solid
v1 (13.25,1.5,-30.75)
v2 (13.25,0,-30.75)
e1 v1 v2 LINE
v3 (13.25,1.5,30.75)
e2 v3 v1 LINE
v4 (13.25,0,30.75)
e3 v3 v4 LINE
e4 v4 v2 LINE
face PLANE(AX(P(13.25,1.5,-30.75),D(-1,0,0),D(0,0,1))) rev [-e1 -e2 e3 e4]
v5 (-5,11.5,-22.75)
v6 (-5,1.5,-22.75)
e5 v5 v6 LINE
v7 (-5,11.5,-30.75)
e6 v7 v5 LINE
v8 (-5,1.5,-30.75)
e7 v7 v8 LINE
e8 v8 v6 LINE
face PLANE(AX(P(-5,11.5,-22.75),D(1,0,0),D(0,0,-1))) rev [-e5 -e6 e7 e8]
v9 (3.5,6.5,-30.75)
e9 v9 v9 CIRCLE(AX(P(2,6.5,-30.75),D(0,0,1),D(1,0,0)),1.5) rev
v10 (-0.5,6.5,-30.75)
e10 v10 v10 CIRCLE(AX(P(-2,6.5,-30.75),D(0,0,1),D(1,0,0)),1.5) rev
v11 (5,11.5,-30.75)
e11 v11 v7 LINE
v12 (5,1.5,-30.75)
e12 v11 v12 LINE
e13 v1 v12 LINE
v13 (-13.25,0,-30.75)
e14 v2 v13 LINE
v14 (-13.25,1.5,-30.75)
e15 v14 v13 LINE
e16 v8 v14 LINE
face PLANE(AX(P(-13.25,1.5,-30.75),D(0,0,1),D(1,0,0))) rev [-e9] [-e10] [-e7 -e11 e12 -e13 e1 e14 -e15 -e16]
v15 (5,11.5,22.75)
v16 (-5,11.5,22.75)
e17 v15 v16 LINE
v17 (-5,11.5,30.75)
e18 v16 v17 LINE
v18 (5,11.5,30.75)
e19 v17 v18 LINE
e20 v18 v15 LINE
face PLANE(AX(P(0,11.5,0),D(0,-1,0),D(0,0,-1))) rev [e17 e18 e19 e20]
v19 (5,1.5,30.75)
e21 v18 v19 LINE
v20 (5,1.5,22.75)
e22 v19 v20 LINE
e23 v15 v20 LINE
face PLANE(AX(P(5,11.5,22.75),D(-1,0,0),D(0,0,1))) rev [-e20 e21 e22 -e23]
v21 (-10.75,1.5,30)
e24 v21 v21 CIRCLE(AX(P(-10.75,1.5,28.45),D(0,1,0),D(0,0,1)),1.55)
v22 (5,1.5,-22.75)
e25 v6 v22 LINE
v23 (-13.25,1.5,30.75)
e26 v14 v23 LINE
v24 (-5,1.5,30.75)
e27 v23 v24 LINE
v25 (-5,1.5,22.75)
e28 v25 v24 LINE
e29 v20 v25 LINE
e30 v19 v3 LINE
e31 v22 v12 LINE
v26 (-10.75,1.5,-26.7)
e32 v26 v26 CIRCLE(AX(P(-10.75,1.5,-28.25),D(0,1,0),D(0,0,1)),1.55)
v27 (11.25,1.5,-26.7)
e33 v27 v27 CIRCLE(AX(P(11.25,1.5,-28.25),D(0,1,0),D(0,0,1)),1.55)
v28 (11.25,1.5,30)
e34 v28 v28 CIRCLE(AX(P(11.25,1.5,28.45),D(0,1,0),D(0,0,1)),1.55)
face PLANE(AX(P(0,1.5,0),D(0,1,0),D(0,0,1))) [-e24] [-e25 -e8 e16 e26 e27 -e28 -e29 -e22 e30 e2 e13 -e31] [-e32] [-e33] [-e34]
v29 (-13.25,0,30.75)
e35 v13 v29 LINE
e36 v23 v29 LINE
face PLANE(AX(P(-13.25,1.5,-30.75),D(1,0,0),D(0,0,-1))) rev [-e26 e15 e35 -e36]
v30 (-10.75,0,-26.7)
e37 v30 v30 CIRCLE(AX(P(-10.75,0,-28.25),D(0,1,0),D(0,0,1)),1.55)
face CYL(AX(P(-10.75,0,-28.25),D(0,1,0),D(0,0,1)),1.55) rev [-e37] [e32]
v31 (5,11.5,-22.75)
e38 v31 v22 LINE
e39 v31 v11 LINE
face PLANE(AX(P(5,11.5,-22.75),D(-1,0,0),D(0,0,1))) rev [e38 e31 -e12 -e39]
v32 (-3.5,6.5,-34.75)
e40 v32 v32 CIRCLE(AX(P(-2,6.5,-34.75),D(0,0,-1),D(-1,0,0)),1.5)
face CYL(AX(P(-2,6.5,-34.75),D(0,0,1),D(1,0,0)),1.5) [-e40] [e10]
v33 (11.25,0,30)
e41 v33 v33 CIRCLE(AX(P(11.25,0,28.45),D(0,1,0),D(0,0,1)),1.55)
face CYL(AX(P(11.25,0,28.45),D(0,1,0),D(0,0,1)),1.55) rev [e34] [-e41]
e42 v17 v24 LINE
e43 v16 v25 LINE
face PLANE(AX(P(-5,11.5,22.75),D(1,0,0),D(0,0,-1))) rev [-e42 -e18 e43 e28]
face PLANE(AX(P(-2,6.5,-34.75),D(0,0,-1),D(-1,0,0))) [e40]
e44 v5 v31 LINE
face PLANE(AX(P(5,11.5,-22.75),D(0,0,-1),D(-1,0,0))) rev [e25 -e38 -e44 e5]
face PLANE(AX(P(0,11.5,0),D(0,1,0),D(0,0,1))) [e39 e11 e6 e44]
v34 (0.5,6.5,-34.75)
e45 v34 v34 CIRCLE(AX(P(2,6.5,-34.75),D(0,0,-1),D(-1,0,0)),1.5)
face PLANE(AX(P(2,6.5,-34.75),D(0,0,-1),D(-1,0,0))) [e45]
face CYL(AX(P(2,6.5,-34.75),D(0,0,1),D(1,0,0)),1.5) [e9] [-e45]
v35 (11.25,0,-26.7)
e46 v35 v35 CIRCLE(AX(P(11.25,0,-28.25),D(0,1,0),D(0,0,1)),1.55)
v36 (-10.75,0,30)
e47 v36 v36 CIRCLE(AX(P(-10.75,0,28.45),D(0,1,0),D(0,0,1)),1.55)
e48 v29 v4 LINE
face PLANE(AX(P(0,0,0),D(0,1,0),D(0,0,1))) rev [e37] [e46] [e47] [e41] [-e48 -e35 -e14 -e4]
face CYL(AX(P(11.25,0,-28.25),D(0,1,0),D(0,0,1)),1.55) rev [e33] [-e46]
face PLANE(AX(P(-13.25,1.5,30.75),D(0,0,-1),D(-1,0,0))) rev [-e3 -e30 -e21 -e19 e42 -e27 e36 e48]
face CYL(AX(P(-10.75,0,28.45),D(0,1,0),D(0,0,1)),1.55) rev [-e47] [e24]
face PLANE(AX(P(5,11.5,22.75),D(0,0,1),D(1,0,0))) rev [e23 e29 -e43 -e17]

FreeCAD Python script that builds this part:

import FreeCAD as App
import Part
import Sketcher

doc = App.newDocument("Part")
params = doc.addObject("Spreadsheet::Sheet", "Params")
for row, (alias, value) in enumerate([
    ("sketch1_width", "26.5 mm"),
    ("sketch1_height", "61.5 mm"),
    ("pad1_length", "1.5 mm"),
    ("sketch2_diameter", "3.1 mm"),
    ("sketch3_width", "10 mm"),
    ("sketch3_height", "8 mm"),
    ("pad2_length", "10 mm"),
    ("sketch4_diameter", "3 mm"),
    ("pad3_length", "4 mm"),
], start=1):
    params.set(f"A{row}", alias)
    params.set(f"B{row}", "=" + value)
    params.setAlias(f"B{row}", alias)

body = doc.addObject("PartDesign::Body", "Body")

# Sketch on XZ plane
sketch1 = body.newObject("Sketcher::SketchObject", "Sketch")
sketch1.AttachmentSupport = (doc.getObject("XZ_Plane"), [""])
sketch1.MapMode = "FlatFace"
sketch1.addGeometry([
    Part.LineSegment(App.Vector(-13, -31, 0), App.Vector(-13, 31, 0)),
    Part.LineSegment(App.Vector(-13, 31, 0), App.Vector(13, 31, 0)),
    Part.LineSegment(App.Vector(13, 31, 0), App.Vector(13, -31, 0)),
    Part.LineSegment(App.Vector(13, -31, 0), App.Vector(-13, -31, 0)),
], False)
sketch1.addConstraint([
    Sketcher.Constraint("Coincident", 0, 2, 1, 1),
    Sketcher.Constraint("Coincident", 1, 2, 2, 1),
    Sketcher.Constraint("Coincident", 2, 2, 3, 1),
    Sketcher.Constraint("Coincident", 3, 2, 0, 1),
    Sketcher.Constraint("Vertical", 0),
    Sketcher.Constraint("Horizontal", 1),
    Sketcher.Constraint("Vertical", 2),
    Sketcher.Constraint("Horizontal", 3),
    Sketcher.Constraint("Symmetric", 0, 2, 2, 2, -1, 1),
    Sketcher.Constraint("DistanceX", 1, 1, 1, 2, 26.5),
    Sketcher.Constraint("DistanceY", 0, 1, 0, 2, 61.5),
])
sketch1.setExpression("Constraints[9]", "Params.sketch1_width")
sketch1.setExpression("Constraints[10]", "Params.sketch1_height")
pad1 = body.newObject("PartDesign::Pad", "Pad")
pad1.Profile = sketch1
pad1.setExpression("Length", "Params.pad1_length")
pad1.Reversed = True

# Sketch on XZ plane
sketch2 = body.newObject("Sketcher::SketchObject", "Sketch001")
sketch2.AttachmentSupport = (doc.getObject("XZ_Plane"), [""])
sketch2.MapMode = "FlatFace"
sketch2.AttachmentOffset = App.Placement(App.Vector(0, 0, -1.5), App.Rotation())
sketch2.addGeometry([
    Part.Circle(App.Vector(-10.8, -28.2, 0), App.Vector(0, 0, 1), 1.6),
    Part.Circle(App.Vector(11.2, -28.2, 0), App.Vector(0, 0, 1), 1.6),
    Part.Circle(App.Vector(11.2, 28.4, 0), App.Vector(0, 0, 1), 1.6),
    Part.Circle(App.Vector(-10.8, 28.4, 0), App.Vector(0, 0, 1), 1.6),
], False)
sketch2.addConstraint([
    Sketcher.Constraint("Equal", 0, 1),
    Sketcher.Constraint("Equal", 1, 2),
    Sketcher.Constraint("Equal", 2, 3),
    Sketcher.Constraint("Horizontal", 0, 3, 1, 3),
    Sketcher.Constraint("Horizontal", 2, 3, 3, 3),
    Sketcher.Constraint("Vertical", 1, 3, 2, 3),
    Sketcher.Constraint("Vertical", 0, 3, 3, 3),
    Sketcher.Constraint("Diameter", 0, 3.1),
    Sketcher.Constraint("DistanceX", 0, 3, 1, 3, 22.0),
    Sketcher.Constraint("DistanceY", 1, 3, 2, 3, 56.7),
    Sketcher.Constraint("DistanceX", 0, 3, -1, 1, 10.75),
    Sketcher.Constraint("DistanceY", 0, 3, -1, 1, 28.25),
])
sketch2.setExpression("Constraints[7]", "Params.sketch2_diameter")
pocket1 = body.newObject("PartDesign::Pocket", "Pocket")
pocket1.Profile = sketch2
pocket1.Type = "ThroughAll"
pocket1.Reversed = True

# Sketch on XZ plane
sketch3 = body.newObject("Sketcher::SketchObject", "Sketch002")
sketch3.AttachmentSupport = (doc.getObject("XZ_Plane"), [""])
sketch3.MapMode = "FlatFace"
sketch3.AttachmentOffset = App.Placement(App.Vector(0, 0, -1.5), App.Rotation())
sketch3.addGeometry([
    Part.LineSegment(App.Vector(-5, 23, 0), App.Vector(-5, 31, 0)),  # 0
    Part.LineSegment(App.Vector(-5, 31, 0), App.Vector(5, 31, 0)),  # 1
    Part.LineSegment(App.Vector(5, 31, 0), App.Vector(5, 23, 0)),  # 2
    Part.LineSegment(App.Vector(5, 23, 0), App.Vector(-5, 23, 0)),  # 3
    Part.LineSegment(App.Vector(-5, -31, 0), App.Vector(-5, -23, 0)),  # 4
    Part.LineSegment(App.Vector(-5, -23, 0), App.Vector(5, -23, 0)),  # 5
    Part.LineSegment(App.Vector(5, -23, 0), App.Vector(5, -31, 0)),  # 6
    Part.LineSegment(App.Vector(5, -31, 0), App.Vector(-5, -31, 0)),  # 7
], False)
sketch3.addConstraint([
    Sketcher.Constraint("Coincident", 0, 2, 1, 1),
    Sketcher.Constraint("Coincident", 1, 2, 2, 1),
    Sketcher.Constraint("Coincident", 2, 2, 3, 1),
    Sketcher.Constraint("Coincident", 3, 2, 0, 1),
    Sketcher.Constraint("Coincident", 4, 2, 5, 1),
    Sketcher.Constraint("Coincident", 5, 2, 6, 1),
    Sketcher.Constraint("Coincident", 6, 2, 7, 1),
    Sketcher.Constraint("Coincident", 7, 2, 4, 1),
    Sketcher.Constraint("Vertical", 0),
    Sketcher.Constraint("Horizontal", 1),
    Sketcher.Constraint("Vertical", 2),
    Sketcher.Constraint("Horizontal", 3),
    Sketcher.Constraint("Vertical", 4),
    Sketcher.Constraint("Horizontal", 5),
    Sketcher.Constraint("Vertical", 6),
    Sketcher.Constraint("Horizontal", 7),
    Sketcher.Constraint("Symmetric", 2, 2, 4, 2, -1, 1),
    Sketcher.Constraint("Symmetric", 0, 2, 6, 2, -1, 1),
    Sketcher.Constraint("Vertical", 3, 2, 4, 2),
    Sketcher.Constraint("DistanceX", 1, 1, 1, 2, 10.0),
    Sketcher.Constraint("DistanceY", 0, 1, 0, 2, 8.0),
    Sketcher.Constraint("DistanceY", 4, 2, 3, 2, 45.5),
])
sketch3.setExpression("Constraints[19]", "Params.sketch3_width")
sketch3.setExpression("Constraints[20]", "Params.sketch3_height")
pad2 = body.newObject("PartDesign::Pad", "Pad001")
pad2.Profile = sketch3
pad2.setExpression("Length", "Params.pad2_length")
pad2.Reversed = True

# Sketch on XY plane
sketch4 = body.newObject("Sketcher::SketchObject", "Sketch003")
sketch4.AttachmentSupport = (doc.getObject("XY_Plane"), [""])
sketch4.MapMode = "FlatFace"
sketch4.AttachmentOffset = App.Placement(App.Vector(0, 0, -30.75), App.Rotation())
sketch4.addGeometry([
    Part.Circle(App.Vector(2, 6.5, 0), App.Vector(0, 0, 1), 1.5),
    Part.Circle(App.Vector(-2, 6.5, 0), App.Vector(0, 0, 1), 1.5),
], False)
sketch4.addConstraint([
    Sketcher.Constraint("Equal", 0, 1),
    Sketcher.Constraint("Symmetric", 0, 3, 1, 3, -2),
    Sketcher.Constraint("Diameter", 0, 3.0),
    Sketcher.Constraint("DistanceX", -1, 1, 0, 3, 2.0),
    Sketcher.Constraint("DistanceY", -1, 1, 0, 3, 6.5),
])
sketch4.setExpression("Constraints[2]", "Params.sketch4_diameter")
pad3 = body.newObject("PartDesign::Pad", "Pad002")
pad3.Profile = sketch4
pad3.setExpression("Length", "Params.pad3_length")
pad3.Reversed = True

doc.recompute()
